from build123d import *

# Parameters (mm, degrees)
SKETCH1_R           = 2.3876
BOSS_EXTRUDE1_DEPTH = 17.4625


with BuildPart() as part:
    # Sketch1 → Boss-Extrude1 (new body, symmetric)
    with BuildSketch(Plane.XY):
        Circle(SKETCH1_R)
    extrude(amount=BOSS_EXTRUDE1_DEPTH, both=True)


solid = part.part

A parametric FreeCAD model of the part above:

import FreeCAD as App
import Part
import Sketcher

V = App.Vector
Q = App.Units.Quantity

doc = App.newDocument("Part")
body = doc.addObject("PartDesign::Body", "Body")

# Sketch on XY plane
sketch1 = body.newObject("Sketcher::SketchObject", "Sketch")
sketch1.AttachmentSupport = (doc.getObject("XY_Plane"), [""])
sketch1.MapMode = "FlatFace"
sketch1.addGeometry(Part.Circle(V(0, 0, 0), V(0, 0, 1), 2.3876), False)
sketch1.addConstraint(Sketcher.Constraint("Coincident", 0, 3, -1, 1))
sketch1.addConstraint(Sketcher.Constraint("Diameter", 0, Q("0.188 in")))
pad1 = body.newObject("PartDesign::Pad", "Pad")
pad1.Profile = sketch1
pad1.Length = Q("1.375 in")
pad1.Midplane = True

doc.recompute()
